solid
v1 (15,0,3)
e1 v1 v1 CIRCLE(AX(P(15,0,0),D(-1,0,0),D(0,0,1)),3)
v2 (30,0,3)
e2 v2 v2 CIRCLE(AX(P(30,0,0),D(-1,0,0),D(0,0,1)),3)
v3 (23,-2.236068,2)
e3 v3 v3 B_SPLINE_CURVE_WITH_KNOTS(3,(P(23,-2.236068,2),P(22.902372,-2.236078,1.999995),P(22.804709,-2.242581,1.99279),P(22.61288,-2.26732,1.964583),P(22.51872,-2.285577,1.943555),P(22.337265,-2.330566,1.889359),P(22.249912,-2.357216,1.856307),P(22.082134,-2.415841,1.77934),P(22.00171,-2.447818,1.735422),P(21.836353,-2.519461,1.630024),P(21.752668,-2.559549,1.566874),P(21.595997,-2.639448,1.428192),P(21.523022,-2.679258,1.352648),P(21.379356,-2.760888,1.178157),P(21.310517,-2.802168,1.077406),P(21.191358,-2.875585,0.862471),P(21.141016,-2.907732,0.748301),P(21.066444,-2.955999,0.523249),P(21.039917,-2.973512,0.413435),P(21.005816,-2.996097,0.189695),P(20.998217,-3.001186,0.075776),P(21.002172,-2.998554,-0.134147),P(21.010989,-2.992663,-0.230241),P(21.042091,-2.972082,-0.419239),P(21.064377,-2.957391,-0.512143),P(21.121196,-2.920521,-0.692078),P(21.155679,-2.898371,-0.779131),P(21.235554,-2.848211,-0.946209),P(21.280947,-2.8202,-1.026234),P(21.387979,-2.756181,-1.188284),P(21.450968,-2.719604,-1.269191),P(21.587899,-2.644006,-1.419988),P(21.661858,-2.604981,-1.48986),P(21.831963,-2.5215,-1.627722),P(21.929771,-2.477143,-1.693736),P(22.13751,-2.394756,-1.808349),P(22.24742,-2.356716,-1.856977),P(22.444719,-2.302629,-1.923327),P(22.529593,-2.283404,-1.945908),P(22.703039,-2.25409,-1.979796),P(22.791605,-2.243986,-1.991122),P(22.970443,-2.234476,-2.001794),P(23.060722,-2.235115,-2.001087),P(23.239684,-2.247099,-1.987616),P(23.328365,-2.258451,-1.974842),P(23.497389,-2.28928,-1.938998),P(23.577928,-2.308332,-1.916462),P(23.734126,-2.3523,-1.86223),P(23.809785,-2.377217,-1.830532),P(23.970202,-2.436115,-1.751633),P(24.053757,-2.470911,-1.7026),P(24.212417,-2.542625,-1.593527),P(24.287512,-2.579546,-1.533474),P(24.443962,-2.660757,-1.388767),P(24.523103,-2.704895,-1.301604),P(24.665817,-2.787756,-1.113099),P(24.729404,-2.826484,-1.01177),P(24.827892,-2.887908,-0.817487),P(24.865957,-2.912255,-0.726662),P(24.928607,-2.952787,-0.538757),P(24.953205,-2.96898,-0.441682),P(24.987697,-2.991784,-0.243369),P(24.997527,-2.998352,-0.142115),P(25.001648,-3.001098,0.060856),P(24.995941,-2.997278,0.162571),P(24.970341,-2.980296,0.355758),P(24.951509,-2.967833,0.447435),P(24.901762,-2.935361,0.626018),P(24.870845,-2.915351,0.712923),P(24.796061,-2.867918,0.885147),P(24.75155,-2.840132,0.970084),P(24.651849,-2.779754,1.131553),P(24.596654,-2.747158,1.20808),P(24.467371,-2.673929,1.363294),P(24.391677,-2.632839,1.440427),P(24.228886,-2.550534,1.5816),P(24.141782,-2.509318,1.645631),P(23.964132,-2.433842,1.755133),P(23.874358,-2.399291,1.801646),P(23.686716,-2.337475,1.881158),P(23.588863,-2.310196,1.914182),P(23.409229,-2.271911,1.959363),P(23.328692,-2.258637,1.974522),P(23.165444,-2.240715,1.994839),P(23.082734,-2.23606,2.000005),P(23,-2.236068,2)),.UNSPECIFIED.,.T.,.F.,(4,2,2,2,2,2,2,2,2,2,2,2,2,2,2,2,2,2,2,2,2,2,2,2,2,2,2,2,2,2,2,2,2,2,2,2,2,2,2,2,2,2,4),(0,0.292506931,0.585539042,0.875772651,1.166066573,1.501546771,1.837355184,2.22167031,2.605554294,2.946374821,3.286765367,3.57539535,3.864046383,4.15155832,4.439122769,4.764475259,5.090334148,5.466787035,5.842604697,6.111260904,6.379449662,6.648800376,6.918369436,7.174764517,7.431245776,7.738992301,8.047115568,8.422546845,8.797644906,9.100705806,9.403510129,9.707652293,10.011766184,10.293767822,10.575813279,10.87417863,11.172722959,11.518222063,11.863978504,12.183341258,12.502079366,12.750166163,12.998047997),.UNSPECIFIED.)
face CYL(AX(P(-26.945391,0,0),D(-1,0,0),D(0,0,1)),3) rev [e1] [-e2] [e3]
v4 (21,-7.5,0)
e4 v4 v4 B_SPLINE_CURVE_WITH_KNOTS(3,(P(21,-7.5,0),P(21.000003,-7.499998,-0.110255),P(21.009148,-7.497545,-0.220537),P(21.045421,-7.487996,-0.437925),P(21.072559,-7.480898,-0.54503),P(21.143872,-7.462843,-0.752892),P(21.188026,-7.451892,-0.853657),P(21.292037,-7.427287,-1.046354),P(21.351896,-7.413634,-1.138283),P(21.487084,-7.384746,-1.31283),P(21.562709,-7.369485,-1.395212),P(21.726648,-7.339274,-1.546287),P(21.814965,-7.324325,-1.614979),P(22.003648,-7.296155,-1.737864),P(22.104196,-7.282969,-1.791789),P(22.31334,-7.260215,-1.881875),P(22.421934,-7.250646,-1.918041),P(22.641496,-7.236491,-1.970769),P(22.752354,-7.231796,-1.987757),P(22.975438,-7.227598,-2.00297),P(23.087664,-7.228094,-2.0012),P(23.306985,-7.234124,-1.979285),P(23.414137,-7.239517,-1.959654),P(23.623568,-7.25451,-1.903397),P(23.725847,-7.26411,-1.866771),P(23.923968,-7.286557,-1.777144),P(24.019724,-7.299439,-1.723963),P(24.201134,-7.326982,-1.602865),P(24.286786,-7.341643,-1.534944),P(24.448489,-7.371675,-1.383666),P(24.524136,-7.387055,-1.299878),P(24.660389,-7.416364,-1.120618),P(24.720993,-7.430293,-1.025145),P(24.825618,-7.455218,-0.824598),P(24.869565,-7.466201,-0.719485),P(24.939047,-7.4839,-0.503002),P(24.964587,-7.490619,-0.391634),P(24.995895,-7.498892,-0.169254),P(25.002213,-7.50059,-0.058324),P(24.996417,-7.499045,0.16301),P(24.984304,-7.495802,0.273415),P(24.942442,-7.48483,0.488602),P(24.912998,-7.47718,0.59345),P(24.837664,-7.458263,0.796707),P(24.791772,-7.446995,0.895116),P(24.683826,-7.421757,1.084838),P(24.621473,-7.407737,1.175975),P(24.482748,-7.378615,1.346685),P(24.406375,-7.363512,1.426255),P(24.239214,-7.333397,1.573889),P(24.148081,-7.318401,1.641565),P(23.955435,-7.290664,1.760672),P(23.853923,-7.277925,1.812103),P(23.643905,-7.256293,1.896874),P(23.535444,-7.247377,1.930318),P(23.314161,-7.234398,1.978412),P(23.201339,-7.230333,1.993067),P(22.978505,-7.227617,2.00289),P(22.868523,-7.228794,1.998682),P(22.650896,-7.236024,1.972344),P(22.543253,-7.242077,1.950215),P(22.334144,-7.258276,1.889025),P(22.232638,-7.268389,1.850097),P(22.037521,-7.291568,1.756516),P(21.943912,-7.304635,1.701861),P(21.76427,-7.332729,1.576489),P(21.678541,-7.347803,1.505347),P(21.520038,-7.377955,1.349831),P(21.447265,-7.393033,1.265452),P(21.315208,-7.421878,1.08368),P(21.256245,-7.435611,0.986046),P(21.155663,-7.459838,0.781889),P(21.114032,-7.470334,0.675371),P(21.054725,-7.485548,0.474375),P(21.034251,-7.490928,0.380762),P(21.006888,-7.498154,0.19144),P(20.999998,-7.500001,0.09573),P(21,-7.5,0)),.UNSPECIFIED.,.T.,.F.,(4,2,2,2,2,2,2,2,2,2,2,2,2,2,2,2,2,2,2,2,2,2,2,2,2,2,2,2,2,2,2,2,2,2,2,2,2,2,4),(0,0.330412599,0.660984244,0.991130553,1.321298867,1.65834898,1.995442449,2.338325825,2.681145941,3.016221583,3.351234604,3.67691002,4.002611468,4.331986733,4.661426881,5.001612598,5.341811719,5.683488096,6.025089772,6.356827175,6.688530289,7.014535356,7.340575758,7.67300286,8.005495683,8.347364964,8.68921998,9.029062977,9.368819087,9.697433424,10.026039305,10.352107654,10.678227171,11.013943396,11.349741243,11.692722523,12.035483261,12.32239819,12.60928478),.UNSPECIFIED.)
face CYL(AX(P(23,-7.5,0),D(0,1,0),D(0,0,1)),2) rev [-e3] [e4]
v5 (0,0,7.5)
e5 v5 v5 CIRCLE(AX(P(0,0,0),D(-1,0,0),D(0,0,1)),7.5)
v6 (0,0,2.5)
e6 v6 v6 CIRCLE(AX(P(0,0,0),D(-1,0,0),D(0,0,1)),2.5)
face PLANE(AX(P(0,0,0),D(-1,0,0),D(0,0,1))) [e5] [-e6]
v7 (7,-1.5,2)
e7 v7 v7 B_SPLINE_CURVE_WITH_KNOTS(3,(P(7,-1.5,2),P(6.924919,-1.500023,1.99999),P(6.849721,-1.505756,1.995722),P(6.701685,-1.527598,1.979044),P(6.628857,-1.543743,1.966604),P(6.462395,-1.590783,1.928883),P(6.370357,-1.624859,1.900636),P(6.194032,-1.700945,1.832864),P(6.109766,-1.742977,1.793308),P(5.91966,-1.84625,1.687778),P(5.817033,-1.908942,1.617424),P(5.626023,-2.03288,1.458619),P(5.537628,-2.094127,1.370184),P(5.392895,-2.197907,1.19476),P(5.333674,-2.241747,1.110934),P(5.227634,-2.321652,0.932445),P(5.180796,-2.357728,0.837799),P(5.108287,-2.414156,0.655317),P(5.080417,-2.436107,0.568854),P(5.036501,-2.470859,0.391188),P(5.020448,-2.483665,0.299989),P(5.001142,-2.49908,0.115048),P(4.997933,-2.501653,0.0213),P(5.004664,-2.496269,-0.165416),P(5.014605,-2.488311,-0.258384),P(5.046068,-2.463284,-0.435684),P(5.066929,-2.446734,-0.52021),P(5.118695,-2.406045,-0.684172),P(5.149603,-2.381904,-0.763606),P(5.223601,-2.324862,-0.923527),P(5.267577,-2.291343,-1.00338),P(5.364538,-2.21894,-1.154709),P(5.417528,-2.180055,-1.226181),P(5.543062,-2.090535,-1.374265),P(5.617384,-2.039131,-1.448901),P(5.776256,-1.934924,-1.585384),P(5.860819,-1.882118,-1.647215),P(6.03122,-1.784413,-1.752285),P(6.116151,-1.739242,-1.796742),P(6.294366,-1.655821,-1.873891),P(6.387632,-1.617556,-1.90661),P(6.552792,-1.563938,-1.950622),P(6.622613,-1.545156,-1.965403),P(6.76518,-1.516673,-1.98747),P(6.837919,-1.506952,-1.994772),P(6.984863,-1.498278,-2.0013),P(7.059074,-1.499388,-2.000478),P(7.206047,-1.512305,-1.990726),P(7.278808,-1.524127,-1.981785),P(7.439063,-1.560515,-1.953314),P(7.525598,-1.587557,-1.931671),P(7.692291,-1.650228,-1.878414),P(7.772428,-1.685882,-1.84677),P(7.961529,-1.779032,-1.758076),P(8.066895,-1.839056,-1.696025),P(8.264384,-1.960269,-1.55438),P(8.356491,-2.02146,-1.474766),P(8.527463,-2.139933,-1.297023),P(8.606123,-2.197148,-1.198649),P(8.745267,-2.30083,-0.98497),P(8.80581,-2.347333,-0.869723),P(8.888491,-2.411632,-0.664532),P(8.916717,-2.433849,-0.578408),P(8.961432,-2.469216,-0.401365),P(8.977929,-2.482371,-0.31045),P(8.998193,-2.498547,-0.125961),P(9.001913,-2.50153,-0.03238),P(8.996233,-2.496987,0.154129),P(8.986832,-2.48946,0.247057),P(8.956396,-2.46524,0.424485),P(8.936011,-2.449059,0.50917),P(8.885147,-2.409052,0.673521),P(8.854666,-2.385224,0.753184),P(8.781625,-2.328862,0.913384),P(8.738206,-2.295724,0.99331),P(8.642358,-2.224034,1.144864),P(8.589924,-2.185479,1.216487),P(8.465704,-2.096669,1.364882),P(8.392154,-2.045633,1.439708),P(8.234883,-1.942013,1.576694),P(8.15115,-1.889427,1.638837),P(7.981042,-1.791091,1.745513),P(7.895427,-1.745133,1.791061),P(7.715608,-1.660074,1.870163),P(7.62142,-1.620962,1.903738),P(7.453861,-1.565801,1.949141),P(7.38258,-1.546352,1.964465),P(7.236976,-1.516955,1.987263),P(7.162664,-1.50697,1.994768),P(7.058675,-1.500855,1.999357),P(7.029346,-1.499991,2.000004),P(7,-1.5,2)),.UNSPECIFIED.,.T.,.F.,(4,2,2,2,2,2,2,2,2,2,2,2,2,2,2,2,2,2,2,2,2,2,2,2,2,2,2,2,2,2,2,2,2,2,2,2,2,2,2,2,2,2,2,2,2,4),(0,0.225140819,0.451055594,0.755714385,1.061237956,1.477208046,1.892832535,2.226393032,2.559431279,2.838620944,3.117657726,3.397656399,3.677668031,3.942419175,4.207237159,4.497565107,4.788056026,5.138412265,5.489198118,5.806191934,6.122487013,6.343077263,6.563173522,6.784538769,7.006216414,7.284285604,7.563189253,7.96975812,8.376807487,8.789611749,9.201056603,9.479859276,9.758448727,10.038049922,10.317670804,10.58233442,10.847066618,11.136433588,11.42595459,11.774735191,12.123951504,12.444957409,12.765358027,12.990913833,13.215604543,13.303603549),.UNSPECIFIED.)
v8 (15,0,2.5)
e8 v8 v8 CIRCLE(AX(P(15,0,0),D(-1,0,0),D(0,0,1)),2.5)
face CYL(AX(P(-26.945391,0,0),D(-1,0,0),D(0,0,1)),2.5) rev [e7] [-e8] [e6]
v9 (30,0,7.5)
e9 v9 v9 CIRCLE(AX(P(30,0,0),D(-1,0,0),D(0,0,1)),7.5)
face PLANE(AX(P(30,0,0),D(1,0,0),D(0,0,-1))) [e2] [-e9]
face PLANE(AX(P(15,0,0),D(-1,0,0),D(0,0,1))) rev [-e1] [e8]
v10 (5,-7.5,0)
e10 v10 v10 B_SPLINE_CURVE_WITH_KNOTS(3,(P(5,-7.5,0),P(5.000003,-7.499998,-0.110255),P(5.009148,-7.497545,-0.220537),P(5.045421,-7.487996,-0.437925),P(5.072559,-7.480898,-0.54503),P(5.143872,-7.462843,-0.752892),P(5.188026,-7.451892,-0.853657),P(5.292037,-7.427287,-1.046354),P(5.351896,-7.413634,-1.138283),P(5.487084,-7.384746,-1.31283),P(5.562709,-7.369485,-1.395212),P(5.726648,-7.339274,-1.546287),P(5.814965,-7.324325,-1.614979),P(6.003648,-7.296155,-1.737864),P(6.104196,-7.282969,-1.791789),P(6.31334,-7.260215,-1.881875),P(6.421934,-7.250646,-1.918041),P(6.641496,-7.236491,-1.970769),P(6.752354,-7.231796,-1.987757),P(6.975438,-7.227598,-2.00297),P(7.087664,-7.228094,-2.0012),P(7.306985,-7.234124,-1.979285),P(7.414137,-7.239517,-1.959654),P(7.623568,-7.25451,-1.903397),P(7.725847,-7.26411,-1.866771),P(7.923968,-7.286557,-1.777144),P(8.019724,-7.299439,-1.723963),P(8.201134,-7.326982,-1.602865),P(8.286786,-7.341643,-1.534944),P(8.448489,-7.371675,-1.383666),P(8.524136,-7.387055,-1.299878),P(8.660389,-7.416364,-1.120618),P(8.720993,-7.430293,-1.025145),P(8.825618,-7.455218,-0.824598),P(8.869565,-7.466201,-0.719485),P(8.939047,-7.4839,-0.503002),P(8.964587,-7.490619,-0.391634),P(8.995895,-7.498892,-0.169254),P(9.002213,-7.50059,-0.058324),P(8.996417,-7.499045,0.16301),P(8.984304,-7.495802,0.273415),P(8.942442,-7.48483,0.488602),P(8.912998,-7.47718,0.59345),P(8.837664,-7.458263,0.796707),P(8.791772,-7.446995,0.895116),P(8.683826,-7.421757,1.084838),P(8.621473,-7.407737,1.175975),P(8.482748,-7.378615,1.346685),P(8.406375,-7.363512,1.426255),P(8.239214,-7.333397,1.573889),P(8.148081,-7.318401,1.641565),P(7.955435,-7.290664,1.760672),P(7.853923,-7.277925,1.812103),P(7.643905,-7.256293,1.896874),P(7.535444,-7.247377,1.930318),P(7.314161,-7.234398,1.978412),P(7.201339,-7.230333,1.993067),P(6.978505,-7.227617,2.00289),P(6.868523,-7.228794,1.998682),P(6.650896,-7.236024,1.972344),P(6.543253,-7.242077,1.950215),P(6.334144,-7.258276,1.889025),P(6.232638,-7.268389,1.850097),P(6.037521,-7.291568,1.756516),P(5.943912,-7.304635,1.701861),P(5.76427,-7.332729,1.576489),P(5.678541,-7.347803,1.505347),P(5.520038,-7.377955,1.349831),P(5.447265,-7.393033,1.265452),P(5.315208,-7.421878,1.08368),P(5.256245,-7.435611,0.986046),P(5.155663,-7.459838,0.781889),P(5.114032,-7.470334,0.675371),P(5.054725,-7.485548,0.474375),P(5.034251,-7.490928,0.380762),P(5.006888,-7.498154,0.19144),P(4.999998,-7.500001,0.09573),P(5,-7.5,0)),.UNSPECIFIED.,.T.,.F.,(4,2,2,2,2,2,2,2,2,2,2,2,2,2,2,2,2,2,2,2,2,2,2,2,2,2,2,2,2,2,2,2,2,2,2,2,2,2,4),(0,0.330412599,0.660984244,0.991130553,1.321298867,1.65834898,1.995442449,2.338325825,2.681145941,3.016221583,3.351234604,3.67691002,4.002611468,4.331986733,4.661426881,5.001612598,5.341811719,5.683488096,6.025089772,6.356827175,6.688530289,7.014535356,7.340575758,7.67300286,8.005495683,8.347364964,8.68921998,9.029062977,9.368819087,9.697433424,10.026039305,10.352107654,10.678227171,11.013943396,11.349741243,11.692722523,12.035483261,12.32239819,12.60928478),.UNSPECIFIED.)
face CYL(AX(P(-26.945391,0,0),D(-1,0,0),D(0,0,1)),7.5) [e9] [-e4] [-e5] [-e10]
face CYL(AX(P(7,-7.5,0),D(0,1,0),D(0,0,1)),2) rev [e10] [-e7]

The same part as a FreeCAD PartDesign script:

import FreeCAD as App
import Part
import Sketcher
Q = App.Units.Quantity

doc = App.newDocument("Part")
body = doc.addObject("PartDesign::Body", "Body")

sketch1 = doc.addObject("Sketcher::SketchObject", "Sketch")
body.addObject(sketch1)
sketch1.AttachmentSupport = (doc.XY_Plane, [""])
sketch1.MapMode = "FlatFace"
sketch1.addGeometry([
    Part.LineSegment(App.Vector(0, 7.5, 0), App.Vector(0, 2.5, 0)),
    Part.LineSegment(App.Vector(0, 2.5, 0), App.Vector(15, 2.5, 0)),
    Part.LineSegment(App.Vector(15, 2.5, 0), App.Vector(15, 3, 0)),
    Part.LineSegment(App.Vector(15, 3, 0), App.Vector(30, 3, 0)),
    Part.LineSegment(App.Vector(30, 3, 0), App.Vector(30, 7.5, 0)),
    Part.LineSegment(App.Vector(30, 7.5, 0), App.Vector(0, 7.5, 0)),
], False)
sketch1.addConstraint([
    Sketcher.Constraint("Coincident", 0, 2, 1, 1),
    Sketcher.Constraint("Coincident", 1, 2, 2, 1),
    Sketcher.Constraint("Coincident", 2, 2, 3, 1),
    Sketcher.Constraint("Coincident", 3, 2, 4, 1),
    Sketcher.Constraint("Coincident", 4, 2, 5, 1),
    Sketcher.Constraint("Coincident", 5, 2, 0, 1),
    Sketcher.Constraint("Vertical", 0),
    Sketcher.Constraint("Horizontal", 1),
    Sketcher.Constraint("Vertical", 2),
    Sketcher.Constraint("Horizontal", 3),
    Sketcher.Constraint("Vertical", 4),
    Sketcher.Constraint("Horizontal", 5),
    Sketcher.Constraint("PointOnObject", 0, 2, -2),
    Sketcher.Constraint("Equal", 1, 3),
    Sketcher.Constraint("DistanceX", 1, 1, 1, 2, Q("15 mm")),
    Sketcher.Constraint("DistanceY", 0, 2, 0, 1, Q("5 mm")),
    Sketcher.Constraint("DistanceY", 2, 1, 2, 2, Q("0.5 mm")),
    Sketcher.Constraint("DistanceY", -1, 1, 2, 2, Q("3 mm")),
])
revolution = doc.addObject("PartDesign::Revolution", "Revolution")
body.addObject(revolution)
revolution.Profile = sketch1
revolution.ReferenceAxis = (sketch1, ["H_Axis"])
revolution.Angle = 360

sketch2 = doc.addObject("Sketcher::SketchObject", "Sketch001")
body.addObject(sketch2)
sketch2.AttachmentSupport = (doc.XZ_Plane, [""])
sketch2.MapMode = "FlatFace"
sketch2.addGeometry([
    Part.Circle(App.Vector(7, 0, 0), App.Vector(0, 0, 1), 2),
    Part.Circle(App.Vector(23, 0, 0), App.Vector(0, 0, 1), 2),
], False)
sketch2.addConstraint([
    Sketcher.Constraint("Equal", 0, 1),
    Sketcher.Constraint("PointOnObject", 0, 3, -1),
    Sketcher.Constraint("PointOnObject", 1, 3, -1),
    Sketcher.Constraint("Diameter", 0, Q("4 mm")),
    Sketcher.Constraint("DistanceX", -1, 1, 0, 3, Q("7 mm")),
    Sketcher.Constraint("DistanceX", -1, 1, 1, 3, Q("23 mm")),
])
pocket1 = doc.addObject("PartDesign::Pocket", "Pocket")
body.addObject(pocket1)
pocket1.Profile = sketch2
pocket1.Type = "ThroughAll"
pocket1.Reversed = True

doc.recompute()
